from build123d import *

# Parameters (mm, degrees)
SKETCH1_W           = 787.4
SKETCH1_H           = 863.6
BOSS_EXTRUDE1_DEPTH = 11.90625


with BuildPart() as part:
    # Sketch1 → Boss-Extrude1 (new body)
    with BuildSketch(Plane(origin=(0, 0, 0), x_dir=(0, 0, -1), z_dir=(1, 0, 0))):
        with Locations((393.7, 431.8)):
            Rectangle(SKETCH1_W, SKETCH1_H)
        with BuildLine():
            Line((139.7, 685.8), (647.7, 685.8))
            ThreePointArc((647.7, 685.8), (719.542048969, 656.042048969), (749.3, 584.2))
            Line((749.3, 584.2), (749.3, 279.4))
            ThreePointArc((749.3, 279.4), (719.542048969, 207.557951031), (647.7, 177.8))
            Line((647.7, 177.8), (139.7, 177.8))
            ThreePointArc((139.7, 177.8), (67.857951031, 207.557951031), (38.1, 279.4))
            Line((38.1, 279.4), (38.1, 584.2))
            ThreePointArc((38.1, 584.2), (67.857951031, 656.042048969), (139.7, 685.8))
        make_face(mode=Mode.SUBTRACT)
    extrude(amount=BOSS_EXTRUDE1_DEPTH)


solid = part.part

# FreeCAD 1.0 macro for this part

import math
import FreeCAD as App
import Part
import Sketcher
from FreeCAD import Vector
Q = App.Units.Quantity


def add_polygon(sketch, points):
    """Adds a closed chain of lines whose ends are joined by coincident constraints."""
    first, n = sketch.GeometryCount, len(points)
    for a, b in zip(points, points[1:] + points[:1]):
        sketch.addGeometry(Part.LineSegment(App.Vector(*a, 0), App.Vector(*b, 0)), False)
    for i in range(n):
        sketch.addConstraint(Sketcher.Constraint("Coincident", first + i, 2, first + (i + 1) % n, 1))

doc = App.newDocument("Part")
body = doc.addObject("PartDesign::Body", "Body")

# Sketch on YZ plane
sketch1 = body.newObject("Sketcher::SketchObject", "Sketch")
sketch1.AttachmentSupport = (doc.getObject("YZ_Plane"), [""])
sketch1.MapMode = "FlatFace"
add_polygon(sketch1, [(864, 0), (0, 0), (0, -787), (864, -787)])  # lines 0-3
sketch1.addGeometry(Part.ArcOfCircle(Part.Circle(Vector(584, -140, 0), Vector(0, 0, 1), 102), math.radians(0), math.radians(90)), False)  # 4
sketch1.addGeometry(Part.LineSegment(Vector(686, -140, 0), Vector(686, -648, 0)), False)  # 5
sketch1.addGeometry(Part.ArcOfCircle(Part.Circle(Vector(584, -648, 0), Vector(0, 0, 1), 102), math.radians(-90), math.radians(0)), False)  # 6
sketch1.addGeometry(Part.LineSegment(Vector(584, -749, 0), Vector(279, -749, 0)), False)  # 7
sketch1.addGeometry(Part.ArcOfCircle(Part.Circle(Vector(279, -648, 0), Vector(0, 0, 1), 102), math.radians(180), math.radians(270)), False)  # 8
sketch1.addGeometry(Part.LineSegment(Vector(178, -648, 0), Vector(178, -140, 0)), False)  # 9
sketch1.addGeometry(Part.ArcOfCircle(Part.Circle(Vector(279, -140, 0), Vector(0, 0, 1), 102), math.radians(90), math.radians(180)), False)  # 10
sketch1.addGeometry(Part.LineSegment(Vector(279, -38, 0), Vector(584, -38, 0)), False)  # 11
sketch1.addConstraint(Sketcher.Constraint("Tangent", 4, 1, 5, 1))
sketch1.addConstraint(Sketcher.Constraint("Tangent", 5, 2, 6, 2))
sketch1.addConstraint(Sketcher.Constraint("Tangent", 6, 1, 7, 1))
sketch1.addConstraint(Sketcher.Constraint("Tangent", 7, 2, 8, 2))
sketch1.addConstraint(Sketcher.Constraint("Tangent", 8, 1, 9, 1))
sketch1.addConstraint(Sketcher.Constraint("Tangent", 9, 2, 10, 2))
sketch1.addConstraint(Sketcher.Constraint("Tangent", 10, 1, 11, 1))
sketch1.addConstraint(Sketcher.Constraint("Tangent", 11, 2, 4, 2))
sketch1.addConstraint(Sketcher.Constraint("Horizontal", 0))
sketch1.addConstraint(Sketcher.Constraint("Vertical", 1))
sketch1.addConstraint(Sketcher.Constraint("Horizontal", 2))
sketch1.addConstraint(Sketcher.Constraint("Vertical", 3))
sketch1.addConstraint(Sketcher.Constraint("Vertical", 5))
sketch1.addConstraint(Sketcher.Constraint("Horizontal", 7))
sketch1.addConstraint(Sketcher.Constraint("Vertical", 9))
sketch1.addConstraint(Sketcher.Constraint("Horizontal", 11))
sketch1.addConstraint(Sketcher.Constraint("Coincident", 0, 2, -1, 1))
sketch1.addConstraint(Sketcher.Constraint("Equal", 4, 6))
sketch1.addConstraint(Sketcher.Constraint("Equal", 6, 8))
sketch1.addConstraint(Sketcher.Constraint("Equal", 8, 10))
sketch1.addConstraint(Sketcher.Constraint("Radius", 4, Q("4 in")))
sketch1.addConstraint(Sketcher.Constraint("DistanceX", 0, 2, 0, 1, Q("34 in")))
sketch1.addConstraint(Sketcher.Constraint("DistanceX", 7, 2, 7, 1, Q("12 in")))
sketch1.addConstraint(Sketcher.Constraint("DistanceY", 1, 2, 1, 1, Q("31 in")))
sketch1.addConstraint(Sketcher.Constraint("DistanceY", 5, 2, 5, 1, Q("20 in")))
sketch1.addConstraint(Sketcher.Constraint("DistanceX", -1, 1, 4, 3, Q("23 in")))
sketch1.addConstraint(Sketcher.Constraint("DistanceY", 4, 3, -1, 1, Q("5.5 in")))
pad1 = body.newObject("PartDesign::Pad", "Pad")
pad1.Profile = sketch1
pad1.Length = Q("0.46875 in")

doc.recompute()
